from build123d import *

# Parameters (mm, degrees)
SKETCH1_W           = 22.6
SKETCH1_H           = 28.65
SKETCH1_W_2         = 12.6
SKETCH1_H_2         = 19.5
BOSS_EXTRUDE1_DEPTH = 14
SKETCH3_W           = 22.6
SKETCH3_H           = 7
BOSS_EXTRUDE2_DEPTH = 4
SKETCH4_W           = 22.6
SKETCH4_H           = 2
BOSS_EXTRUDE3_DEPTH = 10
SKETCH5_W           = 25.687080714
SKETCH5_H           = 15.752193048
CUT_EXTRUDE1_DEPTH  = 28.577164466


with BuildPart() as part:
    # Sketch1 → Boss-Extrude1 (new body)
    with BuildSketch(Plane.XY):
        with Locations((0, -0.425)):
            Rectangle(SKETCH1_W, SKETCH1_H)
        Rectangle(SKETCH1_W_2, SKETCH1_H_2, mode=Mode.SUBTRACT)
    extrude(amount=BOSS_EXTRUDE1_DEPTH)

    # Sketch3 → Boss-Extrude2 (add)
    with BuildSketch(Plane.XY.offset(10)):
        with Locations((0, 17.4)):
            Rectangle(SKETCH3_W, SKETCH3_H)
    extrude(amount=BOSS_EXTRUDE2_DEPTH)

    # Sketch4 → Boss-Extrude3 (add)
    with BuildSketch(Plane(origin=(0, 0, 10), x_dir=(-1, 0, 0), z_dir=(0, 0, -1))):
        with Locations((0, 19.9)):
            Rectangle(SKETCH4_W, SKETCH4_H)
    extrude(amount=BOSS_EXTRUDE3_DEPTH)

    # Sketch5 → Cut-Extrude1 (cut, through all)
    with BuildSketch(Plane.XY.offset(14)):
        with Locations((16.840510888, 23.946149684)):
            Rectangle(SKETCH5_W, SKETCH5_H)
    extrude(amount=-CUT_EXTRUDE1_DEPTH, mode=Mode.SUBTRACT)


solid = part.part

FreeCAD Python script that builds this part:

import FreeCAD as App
import Part
import Sketcher
Q = App.Units.Quantity


def add_polygon(sketch, points):
    """Adds a closed chain of lines whose ends are joined by coincident constraints."""
    first, n = sketch.GeometryCount, len(points)
    for a, b in zip(points, points[1:] + points[:1]):
        sketch.addGeometry(Part.LineSegment(App.Vector(*a, 0), App.Vector(*b, 0)), False)
    for i in range(n):
        sketch.addConstraint(Sketcher.Constraint("Coincident", first + i, 2, first + (i + 1) % n, 1))

doc = App.newDocument("Part")
body = doc.addObject("PartDesign::Body", "Body")

# Sketch on XY plane
sketch1 = body.newObject("Sketcher::SketchObject", "Sketch")
sketch1.AttachmentSupport = (doc.getObject("XY_Plane"), [""])
sketch1.MapMode = "FlatFace"
add_polygon(sketch1, [(-11.3, 13.9), (-11.3, -14.75), (11.3, -14.75), (11.3, 13.9)])  # lines 0-3
add_polygon(sketch1, [(6.3, -9.75), (-6.3, -9.75), (-6.3, 9.75), (6.3, 9.75)])  # lines 4-7
sketch1.addConstraint(Sketcher.Constraint("Vertical", 0))
sketch1.addConstraint(Sketcher.Constraint("Horizontal", 1))
sketch1.addConstraint(Sketcher.Constraint("Vertical", 2))
sketch1.addConstraint(Sketcher.Constraint("Horizontal", 3))
sketch1.addConstraint(Sketcher.Constraint("Horizontal", 4))
sketch1.addConstraint(Sketcher.Constraint("Vertical", 5))
sketch1.addConstraint(Sketcher.Constraint("Horizontal", 6))
sketch1.addConstraint(Sketcher.Constraint("Vertical", 7))
sketch1.addConstraint(Sketcher.Constraint("Symmetric", 4, 2, 6, 2, -1, 1))
sketch1.addConstraint(Sketcher.Constraint("DistanceX", 1, 1, 1, 2, Q("22.6 mm")))
sketch1.addConstraint(Sketcher.Constraint("DistanceX", 4, 2, 4, 1, Q("12.6 mm")))
sketch1.addConstraint(Sketcher.Constraint("DistanceY", 5, 1, 5, 2, Q("19.5 mm")))
sketch1.addConstraint(Sketcher.Constraint("DistanceX", 0, 2, 4, 2, Q("5 mm")))
sketch1.addConstraint(Sketcher.Constraint("DistanceY", 0, 2, 4, 2, Q("5 mm")))
sketch1.addConstraint(Sketcher.Constraint("DistanceY", 0, 2, 0, 1, Q("28.65 mm")))
pad1 = body.newObject("PartDesign::Pad", "Pad")
pad1.Profile = sketch1
pad1.Length = 14

# Sketch on XY plane
sketch2 = body.newObject("Sketcher::SketchObject", "Sketch001")
sketch2.AttachmentSupport = (doc.getObject("XY_Plane"), [""])
sketch2.MapMode = "FlatFace"
sketch2.AttachmentOffset = App.Placement(App.Vector(0, 0, 10), App.Rotation())
add_polygon(sketch2, [(-11.3, 20.9), (-11.3, 13.9), (11.3, 13.9), (11.3, 20.9)])  # lines 0-3
sketch2.addConstraint(Sketcher.Constraint("Vertical", 0))
sketch2.addConstraint(Sketcher.Constraint("Horizontal", 1))
sketch2.addConstraint(Sketcher.Constraint("Vertical", 2))
sketch2.addConstraint(Sketcher.Constraint("Horizontal", 3))
sketch2.addConstraint(Sketcher.Constraint("DistanceY", 0, 2, 0, 1, Q("7 mm")))
sketch2.addConstraint(Sketcher.Constraint("DistanceX", 1, 1, 1, 2, Q("22.6 mm")))
sketch2.addConstraint(Sketcher.Constraint("DistanceX", 0, 2, -1, 1, Q("11.3 mm")))
sketch2.addConstraint(Sketcher.Constraint("DistanceY", -1, 1, 0, 2, Q("13.9 mm")))
pad2 = body.newObject("PartDesign::Pad", "Pad001")
pad2.Profile = sketch2
pad2.Length = 4

# Sketch on XY plane
sketch3 = body.newObject("Sketcher::SketchObject", "Sketch002")
sketch3.AttachmentSupport = (doc.getObject("XY_Plane"), [""])
sketch3.MapMode = "FlatFace"
sketch3.AttachmentOffset = App.Placement(App.Vector(0, 0, 10), App.Rotation())
add_polygon(sketch3, [(11.3, 20.9), (11.3, 18.9), (-11.3, 18.9), (-11.3, 20.9)])  # lines 0-3
sketch3.addConstraint(Sketcher.Constraint("Vertical", 0))
sketch3.addConstraint(Sketcher.Constraint("Horizontal", 1))
sketch3.addConstraint(Sketcher.Constraint("Vertical", 2))
sketch3.addConstraint(Sketcher.Constraint("Horizontal", 3))
sketch3.addConstraint(Sketcher.Constraint("DistanceY", 0, 2, 0, 1, Q("2 mm")))
sketch3.addConstraint(Sketcher.Constraint("DistanceX", 1, 2, 1, 1, Q("22.6 mm")))
sketch3.addConstraint(Sketcher.Constraint("DistanceX", -1, 1, 0, 2, Q("11.3 mm")))
sketch3.addConstraint(Sketcher.Constraint("DistanceY", -1, 1, 0, 2, Q("18.9 mm")))
pad3 = body.newObject("PartDesign::Pad", "Pad002")
pad3.Profile = sketch3
pad3.Length = 10
pad3.Reversed = True

# Sketch on XY plane
sketch4 = body.newObject("Sketcher::SketchObject", "Sketch003")
sketch4.AttachmentSupport = (doc.getObject("XY_Plane"), [""])
sketch4.MapMode = "FlatFace"
sketch4.AttachmentOffset = App.Placement(App.Vector(0, 0, 14), App.Rotation())
add_polygon(sketch4, [(3.996971, 31.822246), (3.996971, 16.070053), (29.684051, 16.070053), (29.684051, 31.822246)])  # lines 0-3
sketch4.addConstraint(Sketcher.Constraint("Vertical", 0))
sketch4.addConstraint(Sketcher.Constraint("Horizontal", 1))
sketch4.addConstraint(Sketcher.Constraint("Vertical", 2))
sketch4.addConstraint(Sketcher.Constraint("Horizontal", 3))
sketch4.addConstraint(Sketcher.Constraint("DistanceX", 1, 1, 1, 2, Q("25.687081 mm")))
sketch4.addConstraint(Sketcher.Constraint("DistanceY", 0, 2, 0, 1, Q("15.752193 mm")))
sketch4.addConstraint(Sketcher.Constraint("DistanceX", -1, 1, 0, 2, Q("3.996971 mm")))
sketch4.addConstraint(Sketcher.Constraint("DistanceY", -1, 1, 0, 2, Q("16.070053 mm")))
pocket1 = body.newObject("PartDesign::Pocket", "Pocket")
pocket1.Profile = sketch4
pocket1.Type = "ThroughAll"

doc.recompute()
